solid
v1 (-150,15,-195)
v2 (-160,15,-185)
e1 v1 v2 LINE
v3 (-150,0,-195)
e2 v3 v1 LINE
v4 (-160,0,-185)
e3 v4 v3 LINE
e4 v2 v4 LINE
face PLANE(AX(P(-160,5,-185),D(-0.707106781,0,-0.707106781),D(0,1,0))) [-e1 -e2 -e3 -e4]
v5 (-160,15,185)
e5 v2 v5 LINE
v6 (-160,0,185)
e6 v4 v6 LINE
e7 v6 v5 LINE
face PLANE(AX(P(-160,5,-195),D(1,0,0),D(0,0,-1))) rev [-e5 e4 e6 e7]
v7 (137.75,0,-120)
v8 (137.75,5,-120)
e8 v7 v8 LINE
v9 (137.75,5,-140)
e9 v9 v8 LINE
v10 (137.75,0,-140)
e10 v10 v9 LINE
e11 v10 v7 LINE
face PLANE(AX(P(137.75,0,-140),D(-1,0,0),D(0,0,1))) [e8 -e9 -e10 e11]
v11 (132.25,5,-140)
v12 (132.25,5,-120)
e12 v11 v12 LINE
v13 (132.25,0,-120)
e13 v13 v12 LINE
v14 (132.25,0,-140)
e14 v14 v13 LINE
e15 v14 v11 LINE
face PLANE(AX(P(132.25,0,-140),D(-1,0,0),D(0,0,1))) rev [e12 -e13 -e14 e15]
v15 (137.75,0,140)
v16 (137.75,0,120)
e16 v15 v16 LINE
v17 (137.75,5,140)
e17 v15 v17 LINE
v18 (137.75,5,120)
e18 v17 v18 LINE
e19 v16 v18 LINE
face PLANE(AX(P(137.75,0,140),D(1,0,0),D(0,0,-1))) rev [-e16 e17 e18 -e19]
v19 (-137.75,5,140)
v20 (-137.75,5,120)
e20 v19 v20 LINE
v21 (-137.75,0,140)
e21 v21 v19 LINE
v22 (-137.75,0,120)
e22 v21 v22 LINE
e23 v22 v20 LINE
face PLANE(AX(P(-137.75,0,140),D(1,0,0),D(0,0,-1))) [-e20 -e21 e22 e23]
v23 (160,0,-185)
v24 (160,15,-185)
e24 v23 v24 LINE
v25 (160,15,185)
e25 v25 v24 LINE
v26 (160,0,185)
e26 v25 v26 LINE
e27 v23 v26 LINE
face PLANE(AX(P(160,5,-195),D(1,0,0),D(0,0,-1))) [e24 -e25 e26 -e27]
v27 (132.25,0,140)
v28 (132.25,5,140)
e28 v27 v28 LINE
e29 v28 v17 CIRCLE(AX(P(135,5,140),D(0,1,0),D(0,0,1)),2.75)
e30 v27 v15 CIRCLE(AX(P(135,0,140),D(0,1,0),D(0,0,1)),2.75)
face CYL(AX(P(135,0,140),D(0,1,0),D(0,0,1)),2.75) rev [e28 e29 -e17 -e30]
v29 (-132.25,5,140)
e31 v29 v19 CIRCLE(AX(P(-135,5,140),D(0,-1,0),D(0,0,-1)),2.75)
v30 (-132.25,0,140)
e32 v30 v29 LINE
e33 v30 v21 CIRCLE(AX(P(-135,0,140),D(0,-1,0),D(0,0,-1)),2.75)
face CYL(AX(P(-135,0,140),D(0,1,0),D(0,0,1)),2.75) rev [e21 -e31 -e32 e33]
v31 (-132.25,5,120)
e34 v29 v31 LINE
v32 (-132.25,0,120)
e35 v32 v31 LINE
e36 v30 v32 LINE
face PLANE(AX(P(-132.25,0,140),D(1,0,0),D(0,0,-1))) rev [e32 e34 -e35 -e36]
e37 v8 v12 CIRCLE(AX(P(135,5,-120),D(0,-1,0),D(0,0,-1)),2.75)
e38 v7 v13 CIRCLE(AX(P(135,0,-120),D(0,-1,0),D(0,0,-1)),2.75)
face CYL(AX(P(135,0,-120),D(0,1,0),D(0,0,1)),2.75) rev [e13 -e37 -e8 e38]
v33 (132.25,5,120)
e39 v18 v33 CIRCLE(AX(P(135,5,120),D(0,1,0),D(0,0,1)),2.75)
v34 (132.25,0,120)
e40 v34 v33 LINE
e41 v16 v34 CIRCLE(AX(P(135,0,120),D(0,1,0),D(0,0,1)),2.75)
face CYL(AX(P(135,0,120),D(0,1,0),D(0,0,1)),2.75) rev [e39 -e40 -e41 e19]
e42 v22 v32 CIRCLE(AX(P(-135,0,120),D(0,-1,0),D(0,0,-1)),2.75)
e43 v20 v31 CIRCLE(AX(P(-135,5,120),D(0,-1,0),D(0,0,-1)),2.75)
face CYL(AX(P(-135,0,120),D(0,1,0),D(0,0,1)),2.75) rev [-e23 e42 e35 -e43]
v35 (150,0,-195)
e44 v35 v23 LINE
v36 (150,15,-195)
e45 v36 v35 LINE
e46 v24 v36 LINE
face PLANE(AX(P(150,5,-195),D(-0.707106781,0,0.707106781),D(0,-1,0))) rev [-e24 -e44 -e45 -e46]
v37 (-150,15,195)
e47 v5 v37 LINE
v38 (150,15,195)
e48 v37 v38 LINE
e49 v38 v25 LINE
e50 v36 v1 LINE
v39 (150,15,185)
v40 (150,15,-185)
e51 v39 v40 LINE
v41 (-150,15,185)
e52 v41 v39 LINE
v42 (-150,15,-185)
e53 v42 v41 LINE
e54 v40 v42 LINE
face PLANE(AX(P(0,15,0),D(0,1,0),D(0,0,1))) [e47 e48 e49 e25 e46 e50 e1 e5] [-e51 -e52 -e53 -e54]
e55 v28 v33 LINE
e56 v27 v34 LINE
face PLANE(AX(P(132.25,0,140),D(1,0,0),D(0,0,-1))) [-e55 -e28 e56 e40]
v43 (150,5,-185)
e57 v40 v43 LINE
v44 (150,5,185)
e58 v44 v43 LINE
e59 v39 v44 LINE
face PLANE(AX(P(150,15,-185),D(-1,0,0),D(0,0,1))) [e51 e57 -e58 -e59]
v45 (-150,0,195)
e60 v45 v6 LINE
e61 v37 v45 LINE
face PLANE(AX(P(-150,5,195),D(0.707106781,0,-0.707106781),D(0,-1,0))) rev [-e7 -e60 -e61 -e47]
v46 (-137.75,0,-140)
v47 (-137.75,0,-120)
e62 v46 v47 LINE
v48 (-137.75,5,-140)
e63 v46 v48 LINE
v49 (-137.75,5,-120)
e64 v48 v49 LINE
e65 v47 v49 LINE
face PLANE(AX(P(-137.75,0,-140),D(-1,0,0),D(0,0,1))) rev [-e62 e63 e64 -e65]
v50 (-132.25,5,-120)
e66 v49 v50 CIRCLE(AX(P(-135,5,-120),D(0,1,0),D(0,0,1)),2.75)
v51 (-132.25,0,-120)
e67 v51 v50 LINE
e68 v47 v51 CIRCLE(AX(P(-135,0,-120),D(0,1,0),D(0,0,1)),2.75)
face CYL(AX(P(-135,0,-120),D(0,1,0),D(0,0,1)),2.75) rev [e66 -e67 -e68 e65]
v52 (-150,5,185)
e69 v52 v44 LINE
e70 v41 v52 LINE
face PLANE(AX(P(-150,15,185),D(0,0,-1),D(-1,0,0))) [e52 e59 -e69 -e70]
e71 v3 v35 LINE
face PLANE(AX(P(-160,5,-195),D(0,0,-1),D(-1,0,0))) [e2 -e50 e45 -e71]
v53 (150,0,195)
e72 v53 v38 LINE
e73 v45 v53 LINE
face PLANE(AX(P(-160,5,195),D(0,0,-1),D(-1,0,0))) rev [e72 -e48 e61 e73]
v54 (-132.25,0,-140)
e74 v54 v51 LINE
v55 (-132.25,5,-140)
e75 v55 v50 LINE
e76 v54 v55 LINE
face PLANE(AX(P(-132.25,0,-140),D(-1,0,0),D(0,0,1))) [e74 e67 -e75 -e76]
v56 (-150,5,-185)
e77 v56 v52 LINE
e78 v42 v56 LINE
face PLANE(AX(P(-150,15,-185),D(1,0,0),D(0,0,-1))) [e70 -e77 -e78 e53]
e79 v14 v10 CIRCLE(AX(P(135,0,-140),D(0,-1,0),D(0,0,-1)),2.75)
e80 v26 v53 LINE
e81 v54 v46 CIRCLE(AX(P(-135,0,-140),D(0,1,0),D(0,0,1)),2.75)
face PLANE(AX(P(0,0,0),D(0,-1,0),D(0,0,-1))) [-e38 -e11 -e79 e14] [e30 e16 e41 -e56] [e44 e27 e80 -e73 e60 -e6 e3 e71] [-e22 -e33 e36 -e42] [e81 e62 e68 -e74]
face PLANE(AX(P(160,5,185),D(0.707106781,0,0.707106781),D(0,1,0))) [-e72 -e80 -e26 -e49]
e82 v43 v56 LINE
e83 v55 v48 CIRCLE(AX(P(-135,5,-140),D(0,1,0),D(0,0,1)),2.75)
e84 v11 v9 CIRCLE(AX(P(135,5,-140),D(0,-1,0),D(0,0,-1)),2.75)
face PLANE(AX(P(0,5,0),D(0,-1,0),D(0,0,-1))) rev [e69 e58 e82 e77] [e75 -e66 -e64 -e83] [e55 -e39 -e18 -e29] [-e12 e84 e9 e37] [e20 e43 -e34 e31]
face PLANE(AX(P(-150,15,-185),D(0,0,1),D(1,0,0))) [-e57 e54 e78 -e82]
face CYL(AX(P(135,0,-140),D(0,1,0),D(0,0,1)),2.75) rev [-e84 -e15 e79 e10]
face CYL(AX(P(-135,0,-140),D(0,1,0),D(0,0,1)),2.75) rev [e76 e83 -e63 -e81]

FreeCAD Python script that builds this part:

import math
import FreeCAD as App
import Part
import Sketcher
from FreeCAD import Vector


def edges_at(feature, points):
    """Names of the edges that pass closest to the given points."""
    edges = feature.Shape.Edges
    near = lambda p: min(range(len(edges)), key=lambda i: edges[i].distToShape(Part.Vertex(*p))[0])
    return sorted({f"Edge{near(p) + 1}" for p in points})

doc = App.newDocument("Part")
body = doc.addObject("PartDesign::Body", "Body")

# Sketch on XZ plane
sketch1 = body.newObject("Sketcher::SketchObject", "Sketch")
sketch1.AttachmentSupport = (doc.getObject("XZ_Plane"), [""])
sketch1.MapMode = "FlatFace"
sketch1.addGeometry([
    Part.LineSegment(Vector(-160, -195, 0), Vector(-160, 195, 0)),
    Part.LineSegment(Vector(-160, 195, 0), Vector(160, 195, 0)),
    Part.LineSegment(Vector(160, 195, 0), Vector(160, -195, 0)),
    Part.LineSegment(Vector(160, -195, 0), Vector(-160, -195, 0)),
], False)
sketch1.addConstraint([
    Sketcher.Constraint("Coincident", 0, 2, 1, 1),
    Sketcher.Constraint("Coincident", 1, 2, 2, 1),
    Sketcher.Constraint("Coincident", 2, 2, 3, 1),
    Sketcher.Constraint("Coincident", 3, 2, 0, 1),
    Sketcher.Constraint("Vertical", 0),
    Sketcher.Constraint("Horizontal", 1),
    Sketcher.Constraint("Vertical", 2),
    Sketcher.Constraint("Horizontal", 3),
    Sketcher.Constraint("Symmetric", 0, 2, 2, 2, -1, 1),
    Sketcher.Constraint("DistanceX", 1, 1, 1, 2, 320.0),
    Sketcher.Constraint("DistanceY", 0, 1, 0, 2, 390.0),
])
pad1 = body.newObject("PartDesign::Pad", "Pad")
pad1.Profile = sketch1
pad1.Length = 5
pad1.Reversed = True

# Sketch on XZ plane
sketch2 = body.newObject("Sketcher::SketchObject", "Sketch001")
sketch2.AttachmentSupport = (doc.getObject("XZ_Plane"), [""])
sketch2.MapMode = "FlatFace"
sketch2.AttachmentOffset = App.Placement(Vector(0, 0, -5), App.Rotation())
sketch2.addGeometry([
    Part.LineSegment(Vector(-132.2, -120, 0), Vector(-132.2, -140, 0)),  # 0
    Part.ArcOfCircle(Part.Circle(Vector(-135, -140, 0), Vector(0, 0, 1), 2.8), math.radians(180), math.radians(360)),  # 1
    Part.LineSegment(Vector(-137.8, -140, 0), Vector(-137.8, -120, 0)),  # 2
    Part.ArcOfCircle(Part.Circle(Vector(-135, -120, 0), Vector(0, 0, 1), 2.8), math.radians(0), math.radians(180)),  # 3
    Part.LineSegment(Vector(-132.2, 140, 0), Vector(-132.2, 120, 0)),  # 4
    Part.ArcOfCircle(Part.Circle(Vector(-135, 120, 0), Vector(0, 0, 1), 2.8), math.radians(180), math.radians(360)),  # 5
    Part.LineSegment(Vector(-137.8, 120, 0), Vector(-137.8, 140, 0)),  # 6
    Part.ArcOfCircle(Part.Circle(Vector(-135, 140, 0), Vector(0, 0, 1), 2.8), math.radians(0), math.radians(180)),  # 7
    Part.LineSegment(Vector(132.2, -140, 0), Vector(132.2, -120, 0)),  # 8
    Part.ArcOfCircle(Part.Circle(Vector(135, -120, 0), Vector(0, 0, 1), 2.8), math.radians(0), math.radians(180)),  # 9
    Part.LineSegment(Vector(137.8, -120, 0), Vector(137.8, -140, 0)),  # 10
    Part.ArcOfCircle(Part.Circle(Vector(135, -140, 0), Vector(0, 0, 1), 2.8), math.radians(180), math.radians(360)),  # 11
    Part.LineSegment(Vector(132.2, 120, 0), Vector(132.2, 140, 0)),  # 12
    Part.ArcOfCircle(Part.Circle(Vector(135, 140, 0), Vector(0, 0, 1), 2.8), math.radians(0), math.radians(180)),  # 13
    Part.LineSegment(Vector(137.8, 140, 0), Vector(137.8, 120, 0)),  # 14
    Part.ArcOfCircle(Part.Circle(Vector(135, 120, 0), Vector(0, 0, 1), 2.8), math.radians(180), math.radians(360)),  # 15
], False)
sketch2.addConstraint([
    Sketcher.Constraint("Tangent", 0, 2, 1, 2),
    Sketcher.Constraint("Tangent", 1, 1, 2, 1),
    Sketcher.Constraint("Tangent", 2, 2, 3, 2),
    Sketcher.Constraint("Tangent", 3, 1, 0, 1),
    Sketcher.Constraint("Tangent", 4, 2, 5, 2),
    Sketcher.Constraint("Tangent", 5, 1, 6, 1),
    Sketcher.Constraint("Tangent", 6, 2, 7, 2),
    Sketcher.Constraint("Tangent", 7, 1, 4, 1),
    Sketcher.Constraint("Tangent", 8, 2, 9, 2),
    Sketcher.Constraint("Tangent", 9, 1, 10, 1),
    Sketcher.Constraint("Tangent", 10, 2, 11, 2),
    Sketcher.Constraint("Tangent", 11, 1, 8, 1),
    Sketcher.Constraint("Tangent", 12, 2, 13, 2),
    Sketcher.Constraint("Tangent", 13, 1, 14, 1),
    Sketcher.Constraint("Tangent", 14, 2, 15, 2),
    Sketcher.Constraint("Tangent", 15, 1, 12, 1),
    Sketcher.Constraint("Vertical", 0),
    Sketcher.Constraint("Vertical", 2),
    Sketcher.Constraint("Vertical", 4),
    Sketcher.Constraint("Vertical", 6),
    Sketcher.Constraint("Vertical", 8),
    Sketcher.Constraint("Vertical", 10),
    Sketcher.Constraint("Vertical", 12),
    Sketcher.Constraint("Vertical", 14),
    Sketcher.Constraint("Equal", 3, 5),
    Sketcher.Constraint("Equal", 7, 9),
    Sketcher.Constraint("Equal", 11, 13),
    Sketcher.Constraint("Symmetric", 5, 3, 9, 3, -1, 1),
    Sketcher.Constraint("Symmetric", 1, 3, 13, 3, -1, 1),
    Sketcher.Constraint("Symmetric", 3, 3, 9, 3, -2),
    Sketcher.Constraint("Horizontal", 1, 3, 11, 3),
    Sketcher.Constraint("Horizontal", 7, 3, 13, 3),
    Sketcher.Constraint("Horizontal", 5, 3, 15, 3),
    Sketcher.Constraint("DistanceY", 0, 2, 0, 1, 20.0),
    Sketcher.Constraint("Radius", 1, 2.75),
    Sketcher.Constraint("DistanceX", 1, 3, -1, 1, 135.0),
    Sketcher.Constraint("DistanceY", 1, 3, -1, 1, 140.0),
])
pocket1 = body.newObject("PartDesign::Pocket", "Pocket")
pocket1.Profile = sketch2
pocket1.Length = 5
pocket1.Reversed = True

# Sketch on XZ plane
sketch3 = body.newObject("Sketcher::SketchObject", "Sketch002")
sketch3.AttachmentSupport = (doc.getObject("XZ_Plane"), [""])
sketch3.MapMode = "FlatFace"
sketch3.addGeometry([
    Part.LineSegment(Vector(-160, -195, 0), Vector(-160, 195, 0)),  # 0
    Part.LineSegment(Vector(-160, 195, 0), Vector(160, 195, 0)),  # 1
    Part.LineSegment(Vector(160, 195, 0), Vector(160, -195, 0)),  # 2
    Part.LineSegment(Vector(160, -195, 0), Vector(-160, -195, 0)),  # 3
    Part.LineSegment(Vector(150, 185, 0), Vector(-150, 185, 0)),  # 4
    Part.LineSegment(Vector(-150, 185, 0), Vector(-150, -185, 0)),  # 5
    Part.LineSegment(Vector(-150, -185, 0), Vector(150, -185, 0)),  # 6
    Part.LineSegment(Vector(150, -185, 0), Vector(150, 185, 0)),  # 7
], False)
sketch3.addConstraint([
    Sketcher.Constraint("Coincident", 0, 2, 1, 1),
    Sketcher.Constraint("Coincident", 1, 2, 2, 1),
    Sketcher.Constraint("Coincident", 2, 2, 3, 1),
    Sketcher.Constraint("Coincident", 3, 2, 0, 1),
    Sketcher.Constraint("Coincident", 4, 2, 5, 1),
    Sketcher.Constraint("Coincident", 5, 2, 6, 1),
    Sketcher.Constraint("Coincident", 6, 2, 7, 1),
    Sketcher.Constraint("Coincident", 7, 2, 4, 1),
    Sketcher.Constraint("Vertical", 0),
    Sketcher.Constraint("Horizontal", 1),
    Sketcher.Constraint("Vertical", 2),
    Sketcher.Constraint("Horizontal", 3),
    Sketcher.Constraint("Horizontal", 4),
    Sketcher.Constraint("Vertical", 5),
    Sketcher.Constraint("Horizontal", 6),
    Sketcher.Constraint("Vertical", 7),
    Sketcher.Constraint("Symmetric", 0, 2, 2, 2, -1, 1),
    Sketcher.Constraint("Symmetric", 4, 2, 6, 2, -1, 1),
    Sketcher.Constraint("DistanceX", 1, 1, 1, 2, 320.0),
    Sketcher.Constraint("DistanceX", 4, 2, 4, 1, 300.0),
    Sketcher.Constraint("DistanceY", 0, 1, 0, 2, 390.0),
    Sketcher.Constraint("DistanceY", 5, 2, 5, 1, 370.0),
])
pad2 = body.newObject("PartDesign::Pad", "Pad001")
pad2.Profile = sketch3
pad2.Length = 15
pad2.Reversed = True
doc.recompute()

chamfer = body.newObject("PartDesign::Chamfer", "Chamfer")
chamfer.Base = (pad2, edges_at(pad2, [
    (-160, 7.5, -195),
    (-160, 7.5, 195),
    (160, 7.5, 195),
    (160, 7.5, -195),
]))
chamfer.Size = 10

doc.recompute()
